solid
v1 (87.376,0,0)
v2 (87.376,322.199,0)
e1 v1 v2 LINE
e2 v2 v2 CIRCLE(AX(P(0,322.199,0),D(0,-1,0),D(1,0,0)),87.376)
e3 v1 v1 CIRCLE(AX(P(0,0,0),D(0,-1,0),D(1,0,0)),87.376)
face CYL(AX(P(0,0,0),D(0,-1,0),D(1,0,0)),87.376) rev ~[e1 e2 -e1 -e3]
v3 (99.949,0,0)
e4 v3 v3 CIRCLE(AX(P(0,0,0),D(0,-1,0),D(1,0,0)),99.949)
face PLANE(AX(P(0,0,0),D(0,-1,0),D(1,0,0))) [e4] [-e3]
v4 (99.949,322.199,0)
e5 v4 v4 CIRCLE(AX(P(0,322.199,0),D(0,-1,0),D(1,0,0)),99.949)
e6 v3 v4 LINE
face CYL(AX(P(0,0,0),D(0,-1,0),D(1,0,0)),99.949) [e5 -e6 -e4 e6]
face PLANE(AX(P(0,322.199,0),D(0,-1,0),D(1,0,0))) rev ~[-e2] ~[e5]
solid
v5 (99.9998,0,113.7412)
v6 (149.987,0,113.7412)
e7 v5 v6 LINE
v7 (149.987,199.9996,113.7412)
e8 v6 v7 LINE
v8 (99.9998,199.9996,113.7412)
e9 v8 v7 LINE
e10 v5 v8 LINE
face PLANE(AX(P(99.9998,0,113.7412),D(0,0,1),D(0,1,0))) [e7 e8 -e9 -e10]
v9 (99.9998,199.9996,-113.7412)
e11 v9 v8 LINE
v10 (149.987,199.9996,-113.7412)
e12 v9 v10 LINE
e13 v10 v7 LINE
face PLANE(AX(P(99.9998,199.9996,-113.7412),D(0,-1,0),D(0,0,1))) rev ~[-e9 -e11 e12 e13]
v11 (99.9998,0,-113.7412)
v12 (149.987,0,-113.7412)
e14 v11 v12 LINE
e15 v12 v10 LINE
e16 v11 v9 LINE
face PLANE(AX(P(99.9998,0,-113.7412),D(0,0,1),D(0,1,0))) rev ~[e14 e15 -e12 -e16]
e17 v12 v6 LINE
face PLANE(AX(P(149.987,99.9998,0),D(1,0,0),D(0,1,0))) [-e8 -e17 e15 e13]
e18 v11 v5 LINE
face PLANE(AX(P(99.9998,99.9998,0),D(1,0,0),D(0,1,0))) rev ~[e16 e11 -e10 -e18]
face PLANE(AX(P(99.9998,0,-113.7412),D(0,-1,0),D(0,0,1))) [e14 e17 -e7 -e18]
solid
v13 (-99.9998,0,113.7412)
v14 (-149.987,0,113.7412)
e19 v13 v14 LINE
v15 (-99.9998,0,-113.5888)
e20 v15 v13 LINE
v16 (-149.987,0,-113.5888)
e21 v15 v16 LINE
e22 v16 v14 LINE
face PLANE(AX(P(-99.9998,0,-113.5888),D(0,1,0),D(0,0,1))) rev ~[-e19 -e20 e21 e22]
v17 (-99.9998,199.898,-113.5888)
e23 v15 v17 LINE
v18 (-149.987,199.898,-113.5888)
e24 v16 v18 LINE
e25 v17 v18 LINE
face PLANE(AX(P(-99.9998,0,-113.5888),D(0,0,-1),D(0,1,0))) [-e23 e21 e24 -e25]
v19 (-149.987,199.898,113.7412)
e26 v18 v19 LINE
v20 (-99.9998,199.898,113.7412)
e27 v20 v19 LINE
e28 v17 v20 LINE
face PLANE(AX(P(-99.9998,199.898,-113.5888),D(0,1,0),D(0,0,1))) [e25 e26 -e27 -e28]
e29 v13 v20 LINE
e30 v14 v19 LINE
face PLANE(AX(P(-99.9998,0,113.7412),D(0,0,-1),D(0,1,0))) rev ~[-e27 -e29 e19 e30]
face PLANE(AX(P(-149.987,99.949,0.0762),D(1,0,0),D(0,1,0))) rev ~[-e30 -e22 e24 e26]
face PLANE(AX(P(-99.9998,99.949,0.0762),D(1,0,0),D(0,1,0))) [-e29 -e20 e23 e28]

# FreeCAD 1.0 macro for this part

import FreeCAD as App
import Part
import Sketcher
Q = App.Units.Quantity

doc = App.newDocument("Part")
params = doc.addObject("Spreadsheet::Sheet", "Params")
for row, (alias, value) in enumerate([
    ("sketch1_diameter", "7.87 in"),
    ("pad1_length", "12.685 in"),
    ("sketch2_diameter", "6.88 in"),
    ("sketch3_width", "7.874 in"),
    ("sketch3_height", "8.956 in"),
    ("pad2_length", "1.968 in"),
    ("sketch4_width", "7.87 in"),
    ("sketch4_height", "8.95 in"),
    ("pad3_length", "1.968 in"),
], start=1):
    params.set(f"A{row}", alias)
    params.set(f"B{row}", "=" + value)
    params.setAlias(f"B{row}", alias)

body = doc.addObject("PartDesign::Body", "Body")

sketch1 = body.newObject("Sketcher::SketchObject", "Sketch")
sketch1.AttachmentSupport = (doc.getObject("XZ_Plane"), [""])
sketch1.MapMode = "FlatFace"
sketch1.addGeometry(Part.Circle(App.Vector(0, 0, 0), App.Vector(0, 0, 1), 100), False)
sketch1.addConstraint([
    Sketcher.Constraint("Coincident", 0, 3, -1, 1),
    Sketcher.Constraint("Diameter", 0, Q("7.87 in")),
])
sketch1.setExpression("Constraints[1]", "Params.sketch1_diameter")
pad1 = body.newObject("PartDesign::Pad", "Pad")
pad1.Profile = sketch1
pad1.setExpression("Length", "Params.pad1_length")
pad1.Reversed = True

sketch2 = body.newObject("Sketcher::SketchObject", "Sketch001")
sketch2.AttachmentSupport = (doc.getObject("XZ_Plane"), [""])
sketch2.MapMode = "FlatFace"
sketch2.addGeometry(Part.Circle(App.Vector(0, 0, 0), App.Vector(0, 0, 1), 87), False)
sketch2.addConstraint([
    Sketcher.Constraint("Coincident", 0, 3, -1, 1),
    Sketcher.Constraint("Diameter", 0, Q("6.88 in")),
])
sketch2.setExpression("Constraints[1]", "Params.sketch2_diameter")
pocket1 = body.newObject("PartDesign::Pocket", "Pocket")
pocket1.Profile = sketch2
pocket1.Type = "ThroughAll"
body2 = doc.addObject("PartDesign::Body", "Body001")

sketch3 = body2.newObject("Sketcher::SketchObject", "Sketch002")
sketch3.AttachmentSupport = (doc.getObject("YZ_Plane001"), [""])
sketch3.MapMode = "FlatFace"
sketch3.AttachmentOffset = App.Placement(App.Vector(0, 0, 3.937 * 25.4), App.Rotation())
sketch3.addGeometry([
    Part.LineSegment(App.Vector(0, 114, 0), App.Vector(0, -114, 0)),
    Part.LineSegment(App.Vector(0, -114, 0), App.Vector(200, -114, 0)),
    Part.LineSegment(App.Vector(200, -114, 0), App.Vector(200, 114, 0)),
    Part.LineSegment(App.Vector(200, 114, 0), App.Vector(0, 114, 0)),
], False)
sketch3.addConstraint([
    Sketcher.Constraint("Coincident", 0, 2, 1, 1),
    Sketcher.Constraint("Coincident", 1, 2, 2, 1),
    Sketcher.Constraint("Coincident", 2, 2, 3, 1),
    Sketcher.Constraint("Coincident", 3, 2, 0, 1),
    Sketcher.Constraint("Vertical", 0),
    Sketcher.Constraint("Horizontal", 1),
    Sketcher.Constraint("Vertical", 2),
    Sketcher.Constraint("Horizontal", 3),
    Sketcher.Constraint("Symmetric", 0, 2, 3, 2, -1, 1),
    Sketcher.Constraint("DistanceX", 1, 1, 1, 2, Q("7.874 in")),
    Sketcher.Constraint("DistanceY", 0, 2, 0, 1, Q("8.956 in")),
])
sketch3.setExpression("Constraints[9]", "Params.sketch3_width")
sketch3.setExpression("Constraints[10]", "Params.sketch3_height")
pad2 = body2.newObject("PartDesign::Pad", "Pad001")
pad2.Profile = sketch3
pad2.setExpression("Length", "Params.pad2_length")
body3 = doc.addObject("PartDesign::Body", "Body002")

sketch4 = body3.newObject("Sketcher::SketchObject", "Sketch003")
sketch4.AttachmentSupport = (doc.getObject("YZ_Plane002"), [""])
sketch4.MapMode = "FlatFace"
sketch4.AttachmentOffset = App.Placement(App.Vector(0, 0, -3.937 * 25.4), App.Rotation())
sketch4.addGeometry([
    Part.LineSegment(App.Vector(0, 114, 0), App.Vector(0, -114, 0)),
    Part.LineSegment(App.Vector(0, -114, 0), App.Vector(200, -114, 0)),
    Part.LineSegment(App.Vector(200, -114, 0), App.Vector(200, 114, 0)),
    Part.LineSegment(App.Vector(200, 114, 0), App.Vector(0, 114, 0)),
], False)
sketch4.addConstraint([
    Sketcher.Constraint("Coincident", 0, 2, 1, 1),
    Sketcher.Constraint("Coincident", 1, 2, 2, 1),
    Sketcher.Constraint("Coincident", 2, 2, 3, 1),
    Sketcher.Constraint("Coincident", 3, 2, 0, 1),
    Sketcher.Constraint("Vertical", 0),
    Sketcher.Constraint("Horizontal", 1),
    Sketcher.Constraint("Vertical", 2),
    Sketcher.Constraint("Horizontal", 3),
    Sketcher.Constraint("PointOnObject", 0, 2, -2),
    Sketcher.Constraint("DistanceX", 1, 1, 1, 2, Q("7.87 in")),
    Sketcher.Constraint("DistanceY", 0, 2, 0, 1, Q("8.95 in")),
    Sketcher.Constraint("DistanceY", 0, 2, -1, 1, Q("4.472 in")),
])
sketch4.setExpression("Constraints[9]", "Params.sketch4_width")
sketch4.setExpression("Constraints[10]", "Params.sketch4_height")
pad3 = body3.newObject("PartDesign::Pad", "Pad002")
pad3.Profile = sketch4
pad3.setExpression("Length", "Params.pad3_length")
pad3.Reversed = True

doc.recompute()
